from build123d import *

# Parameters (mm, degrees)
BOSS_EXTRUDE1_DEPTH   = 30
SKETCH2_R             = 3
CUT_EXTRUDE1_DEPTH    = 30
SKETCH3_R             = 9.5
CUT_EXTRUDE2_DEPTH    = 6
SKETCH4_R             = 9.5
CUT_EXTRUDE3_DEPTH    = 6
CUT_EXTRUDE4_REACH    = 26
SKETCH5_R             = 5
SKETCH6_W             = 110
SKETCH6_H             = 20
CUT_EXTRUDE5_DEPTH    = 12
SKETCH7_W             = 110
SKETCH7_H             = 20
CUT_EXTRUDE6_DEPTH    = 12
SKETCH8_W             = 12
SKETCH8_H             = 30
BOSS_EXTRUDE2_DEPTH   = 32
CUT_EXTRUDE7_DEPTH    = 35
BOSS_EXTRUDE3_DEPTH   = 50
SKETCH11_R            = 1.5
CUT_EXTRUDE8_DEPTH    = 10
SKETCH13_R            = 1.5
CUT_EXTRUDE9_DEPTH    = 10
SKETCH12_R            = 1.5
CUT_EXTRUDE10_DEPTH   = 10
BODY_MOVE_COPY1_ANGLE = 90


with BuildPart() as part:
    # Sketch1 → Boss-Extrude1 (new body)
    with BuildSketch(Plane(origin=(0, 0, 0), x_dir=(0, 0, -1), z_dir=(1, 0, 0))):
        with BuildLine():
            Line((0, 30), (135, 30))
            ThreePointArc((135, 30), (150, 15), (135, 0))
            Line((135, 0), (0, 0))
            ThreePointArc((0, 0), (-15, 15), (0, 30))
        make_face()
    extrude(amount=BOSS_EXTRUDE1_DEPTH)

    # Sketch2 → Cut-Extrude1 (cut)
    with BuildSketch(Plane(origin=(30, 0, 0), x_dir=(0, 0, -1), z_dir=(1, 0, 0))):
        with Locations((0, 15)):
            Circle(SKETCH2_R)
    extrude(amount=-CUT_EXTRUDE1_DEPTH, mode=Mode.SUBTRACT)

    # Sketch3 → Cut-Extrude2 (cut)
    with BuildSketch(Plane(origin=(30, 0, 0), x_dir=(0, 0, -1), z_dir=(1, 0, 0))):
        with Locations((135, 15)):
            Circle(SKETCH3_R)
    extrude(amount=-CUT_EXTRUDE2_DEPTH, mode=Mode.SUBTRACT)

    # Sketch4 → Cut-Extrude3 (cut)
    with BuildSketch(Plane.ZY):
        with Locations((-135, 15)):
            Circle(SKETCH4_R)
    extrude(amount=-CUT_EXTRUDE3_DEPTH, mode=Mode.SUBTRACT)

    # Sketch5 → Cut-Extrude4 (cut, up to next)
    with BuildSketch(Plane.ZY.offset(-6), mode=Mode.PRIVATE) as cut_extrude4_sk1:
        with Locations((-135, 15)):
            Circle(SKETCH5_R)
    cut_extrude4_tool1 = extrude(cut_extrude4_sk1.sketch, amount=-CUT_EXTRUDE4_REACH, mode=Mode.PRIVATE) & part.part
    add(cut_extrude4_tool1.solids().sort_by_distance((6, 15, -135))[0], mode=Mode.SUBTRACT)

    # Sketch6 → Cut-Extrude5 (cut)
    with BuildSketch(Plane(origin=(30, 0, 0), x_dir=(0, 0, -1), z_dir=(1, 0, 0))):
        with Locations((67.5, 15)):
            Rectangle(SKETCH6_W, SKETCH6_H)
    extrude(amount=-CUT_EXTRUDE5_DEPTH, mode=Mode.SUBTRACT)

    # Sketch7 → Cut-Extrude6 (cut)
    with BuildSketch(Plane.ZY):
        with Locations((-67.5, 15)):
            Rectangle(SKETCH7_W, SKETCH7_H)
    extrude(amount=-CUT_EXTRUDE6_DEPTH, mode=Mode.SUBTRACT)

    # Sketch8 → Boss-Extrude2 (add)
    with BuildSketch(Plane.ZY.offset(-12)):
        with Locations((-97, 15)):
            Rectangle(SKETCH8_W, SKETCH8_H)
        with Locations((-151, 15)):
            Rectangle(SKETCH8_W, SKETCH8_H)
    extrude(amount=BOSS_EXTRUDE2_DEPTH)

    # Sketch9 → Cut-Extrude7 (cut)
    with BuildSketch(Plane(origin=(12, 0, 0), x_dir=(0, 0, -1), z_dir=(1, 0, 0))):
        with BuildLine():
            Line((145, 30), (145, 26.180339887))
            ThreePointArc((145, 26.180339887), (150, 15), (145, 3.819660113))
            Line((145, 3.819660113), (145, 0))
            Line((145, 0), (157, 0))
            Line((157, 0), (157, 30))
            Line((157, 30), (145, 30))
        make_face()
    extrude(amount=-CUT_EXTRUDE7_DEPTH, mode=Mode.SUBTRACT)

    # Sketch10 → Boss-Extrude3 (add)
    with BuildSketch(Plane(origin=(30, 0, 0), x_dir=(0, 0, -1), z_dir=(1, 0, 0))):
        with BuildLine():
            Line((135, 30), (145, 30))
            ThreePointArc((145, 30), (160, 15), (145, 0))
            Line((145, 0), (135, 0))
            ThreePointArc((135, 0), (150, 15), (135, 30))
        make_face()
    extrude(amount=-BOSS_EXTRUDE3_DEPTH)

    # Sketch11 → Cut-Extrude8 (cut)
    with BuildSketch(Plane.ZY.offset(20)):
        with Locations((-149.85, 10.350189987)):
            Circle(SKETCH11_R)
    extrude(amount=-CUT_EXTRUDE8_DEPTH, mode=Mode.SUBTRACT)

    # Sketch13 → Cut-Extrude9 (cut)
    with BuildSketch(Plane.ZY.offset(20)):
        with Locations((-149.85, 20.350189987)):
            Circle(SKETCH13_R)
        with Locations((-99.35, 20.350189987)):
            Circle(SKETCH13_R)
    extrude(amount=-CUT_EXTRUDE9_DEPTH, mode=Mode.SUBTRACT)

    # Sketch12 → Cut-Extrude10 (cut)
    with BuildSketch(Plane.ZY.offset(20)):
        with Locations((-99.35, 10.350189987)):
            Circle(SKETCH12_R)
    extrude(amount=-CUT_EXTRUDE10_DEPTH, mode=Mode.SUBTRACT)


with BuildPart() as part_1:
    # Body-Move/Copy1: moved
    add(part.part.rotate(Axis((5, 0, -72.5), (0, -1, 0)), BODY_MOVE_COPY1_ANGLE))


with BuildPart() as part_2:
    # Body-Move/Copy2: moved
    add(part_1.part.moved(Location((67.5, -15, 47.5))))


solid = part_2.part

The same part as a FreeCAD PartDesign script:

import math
import FreeCAD as App
import Part
import Sketcher

doc = App.newDocument("Part")
params = doc.addObject("Spreadsheet::Sheet", "Params")
for row, (alias, value) in enumerate([
    ("sketch1_radius", "15 mm"),
    ("sketch1_height", "135 mm"),
    ("pad1_length", "30 mm"),
    ("sketch2_diameter", "6 mm"),
    ("pocket1_length", "30 mm"),
    ("sketch3_diameter", "19 mm"),
    ("pocket2_length", "6 mm"),
    ("sketch4_diameter", "19 mm"),
    ("pocket3_length", "6 mm"),
    ("sketch5_diameter", "10 mm"),
    ("sketch6_width", "20 mm"),
    ("sketch6_height", "110 mm"),
    ("pocket5_length", "12 mm"),
    ("sketch7_width", "20 mm"),
    ("sketch7_height", "110 mm"),
    ("pocket6_length", "12 mm"),
    ("sketch8_width", "30 mm"),
    ("sketch8_height", "12 mm"),
    ("pad2_length", "32 mm"),
    ("sketch9_radius", "15 mm"),
    ("sketch9_width", "30 mm"),
    ("sketch9_height", "12 mm"),
    ("pocket7_length", "35 mm"),
    ("sketch10_radius", "15 mm"),
    ("sketch10_height", "10 mm"),
    ("pad3_length", "50 mm"),
    ("sketch11_diameter", "3 mm"),
    ("pocket8_length", "10 mm"),
    ("sketch12_diameter", "3 mm"),
    ("pocket9_length", "10 mm"),
    ("sketch13_diameter", "3 mm"),
    ("pocket10_length", "10 mm"),
], start=1):
    params.set(f"A{row}", alias)
    params.set(f"B{row}", "=" + value)
    params.setAlias(f"B{row}", alias)

body = doc.addObject("PartDesign::Body", "Body")

# Sketch on YZ plane
sketch1 = doc.addObject("Sketcher::SketchObject", "Sketch")
body.addObject(sketch1)
sketch1.AttachmentSupport = (doc.YZ_Plane, [""])
sketch1.MapMode = "FlatFace"
sketch1.addGeometry([
    Part.LineSegment(App.Vector(30, -135, 0), App.Vector(30, 0, 0)),
    Part.ArcOfCircle(Part.Circle(App.Vector(15, 0, 0), App.Vector(0, 0, 1), 15), math.radians(0), math.radians(180)),
    Part.LineSegment(App.Vector(0, 0, 0), App.Vector(0, -135, 0)),
    Part.ArcOfCircle(Part.Circle(App.Vector(15, -135, 0), App.Vector(0, 0, 1), 15), math.radians(180), math.radians(360)),
], False)
sketch1.addConstraint([
    Sketcher.Constraint("Tangent", 0, 2, 1, 1),
    Sketcher.Constraint("Tangent", 1, 2, 2, 1),
    Sketcher.Constraint("Tangent", 2, 2, 3, 1),
    Sketcher.Constraint("Tangent", 3, 2, 0, 1),
    Sketcher.Constraint("Vertical", 0),
    Sketcher.Constraint("Vertical", 2),
    Sketcher.Constraint("Coincident", 1, 2, -1, 1),
    Sketcher.Constraint("Radius", 1, 15.0),
    Sketcher.Constraint("DistanceY", 0, 1, 0, 2, 135.0),
])
sketch1.setExpression("Constraints[7]", "Params.sketch1_radius")
sketch1.setExpression("Constraints[8]", "Params.sketch1_height")
pad1 = doc.addObject("PartDesign::Pad", "Pad")
body.addObject(pad1)
pad1.Profile = sketch1
pad1.setExpression("Length", "Params.pad1_length")

# Sketch on YZ plane
sketch2 = doc.addObject("Sketcher::SketchObject", "Sketch001")
body.addObject(sketch2)
sketch2.AttachmentSupport = (doc.YZ_Plane, [""])
sketch2.MapMode = "FlatFace"
sketch2.AttachmentOffset = App.Placement(App.Vector(0, 0, 30), App.Rotation())
sketch2.addGeometry(Part.Circle(App.Vector(15, 0, 0), App.Vector(0, 0, 1), 3), False)
sketch2.addConstraint([
    Sketcher.Constraint("PointOnObject", 0, 3, -1),
    Sketcher.Constraint("Diameter", 0, 6.0),
    Sketcher.Constraint("DistanceX", -1, 1, 0, 3, 15.0),
])
sketch2.setExpression("Constraints[1]", "Params.sketch2_diameter")
pocket1 = doc.addObject("PartDesign::Pocket", "Pocket")
body.addObject(pocket1)
pocket1.Profile = sketch2
pocket1.setExpression("Length", "Params.pocket1_length")

# Sketch on YZ plane
sketch3 = doc.addObject("Sketcher::SketchObject", "Sketch002")
body.addObject(sketch3)
sketch3.AttachmentSupport = (doc.YZ_Plane, [""])
sketch3.MapMode = "FlatFace"
sketch3.AttachmentOffset = App.Placement(App.Vector(0, 0, 30), App.Rotation())
sketch3.addGeometry(Part.Circle(App.Vector(15, -135, 0), App.Vector(0, 0, 1), 10), False)
sketch3.addConstraint([
    Sketcher.Constraint("Diameter", 0, 19.0),
    Sketcher.Constraint("DistanceX", -1, 1, 0, 3, 15.0),
    Sketcher.Constraint("DistanceY", 0, 3, -1, 1, 135.0),
])
sketch3.setExpression("Constraints[0]", "Params.sketch3_diameter")
pocket2 = doc.addObject("PartDesign::Pocket", "Pocket001")
body.addObject(pocket2)
pocket2.Profile = sketch3
pocket2.setExpression("Length", "Params.pocket2_length")

# Sketch on YZ plane
sketch4 = doc.addObject("Sketcher::SketchObject", "Sketch003")
body.addObject(sketch4)
sketch4.AttachmentSupport = (doc.YZ_Plane, [""])
sketch4.MapMode = "FlatFace"
sketch4.addGeometry(Part.Circle(App.Vector(15, -135, 0), App.Vector(0, 0, 1), 10), False)
sketch4.addConstraint([
    Sketcher.Constraint("Diameter", 0, 19.0),
    Sketcher.Constraint("DistanceX", -1, 1, 0, 3, 15.0),
    Sketcher.Constraint("DistanceY", 0, 3, -1, 1, 135.0),
])
sketch4.setExpression("Constraints[0]", "Params.sketch4_diameter")
pocket3 = doc.addObject("PartDesign::Pocket", "Pocket002")
body.addObject(pocket3)
pocket3.Profile = sketch4
pocket3.setExpression("Length", "Params.pocket3_length")
pocket3.Reversed = True

# Sketch on YZ plane
sketch5 = doc.addObject("Sketcher::SketchObject", "Sketch004")
body.addObject(sketch5)
sketch5.AttachmentSupport = (doc.YZ_Plane, [""])
sketch5.MapMode = "FlatFace"
sketch5.AttachmentOffset = App.Placement(App.Vector(0, 0, 6), App.Rotation())
sketch5.addGeometry(Part.Circle(App.Vector(15, -135, 0), App.Vector(0, 0, 1), 5), False)
sketch5.addConstraint([
    Sketcher.Constraint("Diameter", 0, 10.0),
    Sketcher.Constraint("DistanceX", -1, 1, 0, 3, 15.0),
    Sketcher.Constraint("DistanceY", 0, 3, -1, 1, 135.0),
])
sketch5.setExpression("Constraints[0]", "Params.sketch5_diameter")
pocket4 = doc.addObject("PartDesign::Pocket", "Pocket003")
body.addObject(pocket4)
pocket4.Profile = sketch5
pocket4.Type = "UpToFirst"
pocket4.Reversed = True

# Sketch on YZ plane
sketch6 = doc.addObject("Sketcher::SketchObject", "Sketch005")
body.addObject(sketch6)
sketch6.AttachmentSupport = (doc.YZ_Plane, [""])
sketch6.MapMode = "FlatFace"
sketch6.AttachmentOffset = App.Placement(App.Vector(0, 0, 30), App.Rotation())
sketch6.addGeometry([
    Part.LineSegment(App.Vector(25, -12, 0), App.Vector(5, -12, 0)),
    Part.LineSegment(App.Vector(5, -12, 0), App.Vector(5, -122, 0)),
    Part.LineSegment(App.Vector(5, -122, 0), App.Vector(25, -122, 0)),
    Part.LineSegment(App.Vector(25, -122, 0), App.Vector(25, -12, 0)),
], False)
sketch6.addConstraint([
    Sketcher.Constraint("Coincident", 0, 2, 1, 1),
    Sketcher.Constraint("Coincident", 1, 2, 2, 1),
    Sketcher.Constraint("Coincident", 2, 2, 3, 1),
    Sketcher.Constraint("Coincident", 3, 2, 0, 1),
    Sketcher.Constraint("Horizontal", 0),
    Sketcher.Constraint("Vertical", 1),
    Sketcher.Constraint("Horizontal", 2),
    Sketcher.Constraint("Vertical", 3),
    Sketcher.Constraint("DistanceX", 0, 2, 0, 1, 20.0),
    Sketcher.Constraint("DistanceY", 1, 2, 1, 1, 110.0),
    Sketcher.Constraint("DistanceX", -1, 1, 0, 2, 5.0),
    Sketcher.Constraint("DistanceY", 0, 2, -1, 1, 12.5),
])
sketch6.setExpression("Constraints[8]", "Params.sketch6_width")
sketch6.setExpression("Constraints[9]", "Params.sketch6_height")
pocket5 = doc.addObject("PartDesign::Pocket", "Pocket004")
body.addObject(pocket5)
pocket5.Profile = sketch6
pocket5.setExpression("Length", "Params.pocket5_length")

# Sketch on YZ plane
sketch7 = doc.addObject("Sketcher::SketchObject", "Sketch006")
body.addObject(sketch7)
sketch7.AttachmentSupport = (doc.YZ_Plane, [""])
sketch7.MapMode = "FlatFace"
sketch7.addGeometry([
    Part.LineSegment(App.Vector(25, -122, 0), App.Vector(5, -122, 0)),
    Part.LineSegment(App.Vector(5, -122, 0), App.Vector(5, -12, 0)),
    Part.LineSegment(App.Vector(5, -12, 0), App.Vector(25, -12, 0)),
    Part.LineSegment(App.Vector(25, -12, 0), App.Vector(25, -122, 0)),
], False)
sketch7.addConstraint([
    Sketcher.Constraint("Coincident", 0, 2, 1, 1),
    Sketcher.Constraint("Coincident", 1, 2, 2, 1),
    Sketcher.Constraint("Coincident", 2, 2, 3, 1),
    Sketcher.Constraint("Coincident", 3, 2, 0, 1),
    Sketcher.Constraint("Horizontal", 0),
    Sketcher.Constraint("Vertical", 1),
    Sketcher.Constraint("Horizontal", 2),
    Sketcher.Constraint("Vertical", 3),
    Sketcher.Constraint("DistanceX", 0, 2, 0, 1, 20.0),
    Sketcher.Constraint("DistanceY", 1, 1, 1, 2, 110.0),
    Sketcher.Constraint("DistanceX", -1, 1, 0, 2, 5.0),
    Sketcher.Constraint("DistanceY", 0, 2, -1, 1, 122.5),
])
sketch7.setExpression("Constraints[8]", "Params.sketch7_width")
sketch7.setExpression("Constraints[9]", "Params.sketch7_height")
pocket6 = doc.addObject("PartDesign::Pocket", "Pocket005")
body.addObject(pocket6)
pocket6.Profile = sketch7
pocket6.setExpression("Length", "Params.pocket6_length")
pocket6.Reversed = True

# Sketch on YZ plane
sketch8 = doc.addObject("Sketcher::SketchObject", "Sketch007")
body.addObject(sketch8)
sketch8.AttachmentSupport = (doc.YZ_Plane, [""])
sketch8.MapMode = "FlatFace"
sketch8.AttachmentOffset = App.Placement(App.Vector(0, 0, 12), App.Rotation())
sketch8.addGeometry([
    Part.LineSegment(App.Vector(30, -103, 0), App.Vector(0, -103, 0)),  # 0
    Part.LineSegment(App.Vector(0, -103, 0), App.Vector(0, -91, 0)),  # 1
    Part.LineSegment(App.Vector(0, -91, 0), App.Vector(30, -91, 0)),  # 2
    Part.LineSegment(App.Vector(30, -91, 0), App.Vector(30, -103, 0)),  # 3
    Part.LineSegment(App.Vector(30, -157, 0), App.Vector(0, -157, 0)),  # 4
    Part.LineSegment(App.Vector(0, -157, 0), App.Vector(0, -145, 0)),  # 5
    Part.LineSegment(App.Vector(0, -145, 0), App.Vector(30, -145, 0)),  # 6
    Part.LineSegment(App.Vector(30, -145, 0), App.Vector(30, -157, 0)),  # 7
], False)
sketch8.addConstraint([
    Sketcher.Constraint("Coincident", 0, 2, 1, 1),
    Sketcher.Constraint("Coincident", 1, 2, 2, 1),
    Sketcher.Constraint("Coincident", 2, 2, 3, 1),
    Sketcher.Constraint("Coincident", 3, 2, 0, 1),
    Sketcher.Constraint("Coincident", 4, 2, 5, 1),
    Sketcher.Constraint("Coincident", 5, 2, 6, 1),
    Sketcher.Constraint("Coincident", 6, 2, 7, 1),
    Sketcher.Constraint("Coincident", 7, 2, 4, 1),
    Sketcher.Constraint("Horizontal", 0),
    Sketcher.Constraint("Vertical", 1),
    Sketcher.Constraint("Horizontal", 2),
    Sketcher.Constraint("Vertical", 3),
    Sketcher.Constraint("Horizontal", 4),
    Sketcher.Constraint("Vertical", 5),
    Sketcher.Constraint("Horizontal", 6),
    Sketcher.Constraint("Vertical", 7),
    Sketcher.Constraint("PointOnObject", 0, 2, -2),
    Sketcher.Constraint("PointOnObject", 4, 2, -2),
    Sketcher.Constraint("Vertical", 3, 2, 6, 2),
    Sketcher.Constraint("Equal", 3, 5),
    Sketcher.Constraint("DistanceX", 0, 2, 0, 1, 30.0),
    Sketcher.Constraint("DistanceY", 1, 1, 1, 2, 12.0),
    Sketcher.Constraint("DistanceY", 0, 2, -1, 1, 103.0),
    Sketcher.Constraint("DistanceY", 4, 2, -1, 1, 157.0),
])
sketch8.setExpression("Constraints[20]", "Params.sketch8_width")
sketch8.setExpression("Constraints[21]", "Params.sketch8_height")
pad2 = doc.addObject("PartDesign::Pad", "Pad001")
body.addObject(pad2)
pad2.Profile = sketch8
pad2.setExpression("Length", "Params.pad2_length")
pad2.Reversed = True

# Sketch on YZ plane
sketch9 = doc.addObject("Sketcher::SketchObject", "Sketch008")
body.addObject(sketch9)
sketch9.AttachmentSupport = (doc.YZ_Plane, [""])
sketch9.MapMode = "FlatFace"
sketch9.AttachmentOffset = App.Placement(App.Vector(0, 0, 12), App.Rotation())
sketch9.addGeometry([
    Part.LineSegment(App.Vector(30, -145, 0), App.Vector(26.2, -145, 0)),  # 0
    Part.ArcOfCircle(Part.Circle(App.Vector(15, -135, 0), App.Vector(0, 0, 1), 15), math.radians(-138), math.radians(-42)),  # 1
    Part.LineSegment(App.Vector(3.8, -145, 0), App.Vector(0, -145, 0)),  # 2
    Part.LineSegment(App.Vector(0, -145, 0), App.Vector(0, -157, 0)),  # 3
    Part.LineSegment(App.Vector(0, -157, 0), App.Vector(30, -157, 0)),  # 4
    Part.LineSegment(App.Vector(30, -157, 0), App.Vector(30, -145, 0)),  # 5
], False)
sketch9.addConstraint([
    Sketcher.Constraint("Coincident", 0, 2, 1, 2),
    Sketcher.Constraint("Coincident", 1, 1, 2, 1),
    Sketcher.Constraint("Coincident", 2, 2, 3, 1),
    Sketcher.Constraint("Coincident", 3, 2, 4, 1),
    Sketcher.Constraint("Coincident", 4, 2, 5, 1),
    Sketcher.Constraint("Coincident", 5, 2, 0, 1),
    Sketcher.Constraint("Horizontal", 0),
    Sketcher.Constraint("Horizontal", 2),
    Sketcher.Constraint("Vertical", 3),
    Sketcher.Constraint("Horizontal", 4),
    Sketcher.Constraint("Vertical", 5),
    Sketcher.Constraint("PointOnObject", 2, 2, -2),
    Sketcher.Constraint("Horizontal", 0, 2, 1, 1),
    Sketcher.Constraint("Equal", 0, 2),
    Sketcher.Constraint("Radius", 1, 15.0),
    Sketcher.Constraint("DistanceX", 4, 1, 4, 2, 30.0),
    Sketcher.Constraint("DistanceY", 3, 2, 3, 1, 12.0),
    Sketcher.Constraint("DistanceY", 1, 3, -1, 1, 135.0),
    Sketcher.Constraint("DistanceY", 0, 2, -1, 1, 145.0),
])
sketch9.setExpression("Constraints[14]", "Params.sketch9_radius")
sketch9.setExpression("Constraints[15]", "Params.sketch9_width")
sketch9.setExpression("Constraints[16]", "Params.sketch9_height")
pocket7 = doc.addObject("PartDesign::Pocket", "Pocket006")
body.addObject(pocket7)
pocket7.Profile = sketch9
pocket7.setExpression("Length", "Params.pocket7_length")

# Sketch on YZ plane
sketch10 = doc.addObject("Sketcher::SketchObject", "Sketch009")
body.addObject(sketch10)
sketch10.AttachmentSupport = (doc.YZ_Plane, [""])
sketch10.MapMode = "FlatFace"
sketch10.AttachmentOffset = App.Placement(App.Vector(0, 0, 30), App.Rotation())
sketch10.addGeometry([
    Part.LineSegment(App.Vector(30, -145, 0), App.Vector(30, -135, 0)),
    Part.ArcOfCircle(Part.Circle(App.Vector(15, -135, 0), App.Vector(0, 0, 1), 15), math.radians(180), math.radians(360)),
    Part.LineSegment(App.Vector(0, -135, 0), App.Vector(0, -145, 0)),
    Part.ArcOfCircle(Part.Circle(App.Vector(15, -145, 0), App.Vector(0, 0, 1), 15), math.radians(180), math.radians(360)),
], False)
sketch10.addConstraint([
    Sketcher.Constraint("Tangent", 0, 2, 1, 2),
    Sketcher.Constraint("Tangent", 1, 1, 2, 1),
    Sketcher.Constraint("Tangent", 2, 2, 3, 1),
    Sketcher.Constraint("Tangent", 3, 2, 0, 1),
    Sketcher.Constraint("Vertical", 0),
    Sketcher.Constraint("Vertical", 2),
    Sketcher.Constraint("PointOnObject", 1, 1, -2),
    Sketcher.Constraint("Radius", 1, 15.0),
    Sketcher.Constraint("DistanceY", 0, 1, 0, 2, 10.0),
    Sketcher.Constraint("DistanceY", 1, 3, -1, 1, 135.0),
])
sketch10.setExpression("Constraints[7]", "Params.sketch10_radius")
sketch10.setExpression("Constraints[8]", "Params.sketch10_height")
pad3 = doc.addObject("PartDesign::Pad", "Pad002")
body.addObject(pad3)
pad3.Profile = sketch10
pad3.setExpression("Length", "Params.pad3_length")
pad3.Reversed = True

# Sketch on YZ plane
sketch11 = doc.addObject("Sketcher::SketchObject", "Sketch010")
body.addObject(sketch11)
sketch11.AttachmentSupport = (doc.YZ_Plane, [""])
sketch11.MapMode = "FlatFace"
sketch11.AttachmentOffset = App.Placement(App.Vector(0, 0, -20), App.Rotation())
sketch11.addGeometry(Part.Circle(App.Vector(10.4, -149.8, 0), App.Vector(0, 0, 1), 1.5), False)
sketch11.addConstraint([
    Sketcher.Constraint("Diameter", 0, 3.0),
    Sketcher.Constraint("DistanceY", 0, 3, -1, 1, 149.85),
    Sketcher.Constraint("DistanceX", -1, 1, 0, 3, 10.35019),
])
sketch11.setExpression("Constraints[0]", "Params.sketch11_diameter")
pocket8 = doc.addObject("PartDesign::Pocket", "Pocket007")
body.addObject(pocket8)
pocket8.Profile = sketch11
pocket8.setExpression("Length", "Params.pocket8_length")
pocket8.Reversed = True

# Sketch on YZ plane
sketch12 = doc.addObject("Sketcher::SketchObject", "Sketch011")
body.addObject(sketch12)
sketch12.AttachmentSupport = (doc.YZ_Plane, [""])
sketch12.MapMode = "FlatFace"
sketch12.AttachmentOffset = App.Placement(App.Vector(0, 0, -20), App.Rotation())
sketch12.addGeometry([
    Part.Circle(App.Vector(20.4, -149.8, 0), App.Vector(0, 0, 1), 1.5),
    Part.Circle(App.Vector(20.4, -99.3, 0), App.Vector(0, 0, 1), 1.5),
], False)
sketch12.addConstraint([
    Sketcher.Constraint("Equal", 0, 1),
    Sketcher.Constraint("Vertical", 0, 3, 1, 3),
    Sketcher.Constraint("Diameter", 0, 3.0),
    Sketcher.Constraint("DistanceY", 0, 3, 1, 3, 50.5),
    Sketcher.Constraint("DistanceY", 0, 3, -1, 1, 149.85),
    Sketcher.Constraint("DistanceX", -1, 1, 0, 3, 20.35019),
])
sketch12.setExpression("Constraints[2]", "Params.sketch12_diameter")
pocket9 = doc.addObject("PartDesign::Pocket", "Pocket008")
body.addObject(pocket9)
pocket9.Profile = sketch12
pocket9.setExpression("Length", "Params.pocket9_length")
pocket9.Reversed = True

# Sketch on YZ plane
sketch13 = doc.addObject("Sketcher::SketchObject", "Sketch012")
body.addObject(sketch13)
sketch13.AttachmentSupport = (doc.YZ_Plane, [""])
sketch13.MapMode = "FlatFace"
sketch13.AttachmentOffset = App.Placement(App.Vector(0, 0, -20), App.Rotation())
sketch13.addGeometry(Part.Circle(App.Vector(10.4, -99.3, 0), App.Vector(0, 0, 1), 1.5), False)
sketch13.addConstraint([
    Sketcher.Constraint("Diameter", 0, 3.0),
    Sketcher.Constraint("DistanceY", 0, 3, -1, 1, 99.35),
    Sketcher.Constraint("DistanceX", -1, 1, 0, 3, 10.35019),
])
sketch13.setExpression("Constraints[0]", "Params.sketch13_diameter")
pocket10 = doc.addObject("PartDesign::Pocket", "Pocket009")
body.addObject(pocket10)
pocket10.Profile = sketch13
pocket10.setExpression("Length", "Params.pocket10_length")
pocket10.Reversed = True
body2 = doc.addObject("PartDesign::Body", "Body001")
doc.recompute()

body.Placement = App.Placement(App.Vector(-67.5, 0, -77.5), App.Rotation(App.Vector(0, -1, 0), 90))
boolean = doc.addObject("PartDesign::Boolean", "Boolean")
body2.addObject(boolean)
boolean.Type = "Fuse"
boolean.addObjects([body])
body3 = doc.addObject("PartDesign::Body", "Body002")
doc.recompute()

body2.Placement = App.Placement(App.Vector(67.5, -15, 47.5), App.Rotation(App.Vector(0, 0, 1), 0))
boolean2 = doc.addObject("PartDesign::Boolean", "Boolean001")
body3.addObject(boolean2)
boolean2.Type = "Fuse"
boolean2.addObjects([body2])

doc.recompute()
